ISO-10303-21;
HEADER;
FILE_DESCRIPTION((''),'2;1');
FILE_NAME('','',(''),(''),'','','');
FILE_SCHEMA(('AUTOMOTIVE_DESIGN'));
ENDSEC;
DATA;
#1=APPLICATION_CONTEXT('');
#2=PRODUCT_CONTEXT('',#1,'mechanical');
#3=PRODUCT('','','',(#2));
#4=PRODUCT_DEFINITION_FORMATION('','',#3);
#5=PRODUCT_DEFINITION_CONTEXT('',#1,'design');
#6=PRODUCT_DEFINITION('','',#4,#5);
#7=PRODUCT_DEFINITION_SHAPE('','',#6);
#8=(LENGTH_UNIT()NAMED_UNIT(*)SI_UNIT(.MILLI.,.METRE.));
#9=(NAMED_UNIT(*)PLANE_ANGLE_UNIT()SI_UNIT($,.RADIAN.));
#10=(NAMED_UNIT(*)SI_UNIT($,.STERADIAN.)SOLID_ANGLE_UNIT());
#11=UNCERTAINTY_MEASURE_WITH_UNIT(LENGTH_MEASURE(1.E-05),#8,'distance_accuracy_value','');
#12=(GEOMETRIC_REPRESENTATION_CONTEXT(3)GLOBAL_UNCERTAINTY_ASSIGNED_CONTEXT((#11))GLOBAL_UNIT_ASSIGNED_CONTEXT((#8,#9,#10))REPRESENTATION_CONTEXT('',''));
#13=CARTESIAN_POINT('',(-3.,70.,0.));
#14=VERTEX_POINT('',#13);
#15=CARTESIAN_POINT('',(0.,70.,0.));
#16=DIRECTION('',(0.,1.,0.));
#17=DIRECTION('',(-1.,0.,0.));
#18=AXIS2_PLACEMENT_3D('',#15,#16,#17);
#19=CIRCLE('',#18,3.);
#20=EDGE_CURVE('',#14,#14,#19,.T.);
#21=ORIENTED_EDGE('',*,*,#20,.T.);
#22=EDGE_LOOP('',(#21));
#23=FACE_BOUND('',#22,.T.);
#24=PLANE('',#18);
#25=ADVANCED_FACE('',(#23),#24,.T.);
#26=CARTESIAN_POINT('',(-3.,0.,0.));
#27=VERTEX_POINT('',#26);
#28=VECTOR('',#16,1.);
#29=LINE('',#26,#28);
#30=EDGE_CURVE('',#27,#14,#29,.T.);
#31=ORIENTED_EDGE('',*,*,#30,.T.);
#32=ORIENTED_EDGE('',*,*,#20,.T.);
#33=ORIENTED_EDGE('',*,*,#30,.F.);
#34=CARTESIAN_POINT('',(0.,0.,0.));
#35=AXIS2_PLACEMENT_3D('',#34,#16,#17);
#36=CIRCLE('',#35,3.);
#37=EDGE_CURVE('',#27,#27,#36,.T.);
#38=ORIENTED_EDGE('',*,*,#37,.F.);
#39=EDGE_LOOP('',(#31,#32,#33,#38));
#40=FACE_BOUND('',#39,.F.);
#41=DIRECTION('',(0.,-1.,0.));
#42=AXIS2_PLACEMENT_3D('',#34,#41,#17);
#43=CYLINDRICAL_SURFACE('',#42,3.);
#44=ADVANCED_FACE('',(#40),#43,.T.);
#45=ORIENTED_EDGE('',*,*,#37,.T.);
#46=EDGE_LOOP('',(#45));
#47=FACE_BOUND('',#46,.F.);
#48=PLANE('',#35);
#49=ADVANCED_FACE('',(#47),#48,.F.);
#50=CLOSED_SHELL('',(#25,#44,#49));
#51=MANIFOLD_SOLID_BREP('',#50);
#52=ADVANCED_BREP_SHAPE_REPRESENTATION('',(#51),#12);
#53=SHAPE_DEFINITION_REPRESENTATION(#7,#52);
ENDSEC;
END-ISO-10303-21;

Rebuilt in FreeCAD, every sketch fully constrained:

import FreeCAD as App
import Part
import Sketcher
from FreeCAD import Vector

doc = App.newDocument("Part")
params = doc.addObject("Spreadsheet::Sheet", "Params")
for row, (alias, value) in enumerate([
    ("sketch1_diameter", "6 mm"),
    ("pad1_length", "70 mm"),
], start=1):
    params.set(f"A{row}", alias)
    params.set(f"B{row}", "=" + value)
    params.setAlias(f"B{row}", alias)

body = doc.addObject("PartDesign::Body", "Body")

# Sketch on XZ plane
sketch1 = body.newObject("Sketcher::SketchObject", "Sketch")
sketch1.AttachmentSupport = (doc.getObject("XZ_Plane"), [""])
sketch1.MapMode = "FlatFace"
sketch1.addGeometry(Part.Circle(Vector(0, 0, 0), Vector(0, 0, 1), 3), False)
sketch1.addConstraint(Sketcher.Constraint("Coincident", 0, 3, -1, 1))
sketch1.addConstraint(Sketcher.Constraint("Diameter", 0, 6.0))
sketch1.setExpression("Constraints[1]", "Params.sketch1_diameter")
pad1 = body.newObject("PartDesign::Pad", "Pad")
pad1.Profile = sketch1
pad1.setExpression("Length", "Params.pad1_length")
pad1.Reversed = True

doc.recompute()
